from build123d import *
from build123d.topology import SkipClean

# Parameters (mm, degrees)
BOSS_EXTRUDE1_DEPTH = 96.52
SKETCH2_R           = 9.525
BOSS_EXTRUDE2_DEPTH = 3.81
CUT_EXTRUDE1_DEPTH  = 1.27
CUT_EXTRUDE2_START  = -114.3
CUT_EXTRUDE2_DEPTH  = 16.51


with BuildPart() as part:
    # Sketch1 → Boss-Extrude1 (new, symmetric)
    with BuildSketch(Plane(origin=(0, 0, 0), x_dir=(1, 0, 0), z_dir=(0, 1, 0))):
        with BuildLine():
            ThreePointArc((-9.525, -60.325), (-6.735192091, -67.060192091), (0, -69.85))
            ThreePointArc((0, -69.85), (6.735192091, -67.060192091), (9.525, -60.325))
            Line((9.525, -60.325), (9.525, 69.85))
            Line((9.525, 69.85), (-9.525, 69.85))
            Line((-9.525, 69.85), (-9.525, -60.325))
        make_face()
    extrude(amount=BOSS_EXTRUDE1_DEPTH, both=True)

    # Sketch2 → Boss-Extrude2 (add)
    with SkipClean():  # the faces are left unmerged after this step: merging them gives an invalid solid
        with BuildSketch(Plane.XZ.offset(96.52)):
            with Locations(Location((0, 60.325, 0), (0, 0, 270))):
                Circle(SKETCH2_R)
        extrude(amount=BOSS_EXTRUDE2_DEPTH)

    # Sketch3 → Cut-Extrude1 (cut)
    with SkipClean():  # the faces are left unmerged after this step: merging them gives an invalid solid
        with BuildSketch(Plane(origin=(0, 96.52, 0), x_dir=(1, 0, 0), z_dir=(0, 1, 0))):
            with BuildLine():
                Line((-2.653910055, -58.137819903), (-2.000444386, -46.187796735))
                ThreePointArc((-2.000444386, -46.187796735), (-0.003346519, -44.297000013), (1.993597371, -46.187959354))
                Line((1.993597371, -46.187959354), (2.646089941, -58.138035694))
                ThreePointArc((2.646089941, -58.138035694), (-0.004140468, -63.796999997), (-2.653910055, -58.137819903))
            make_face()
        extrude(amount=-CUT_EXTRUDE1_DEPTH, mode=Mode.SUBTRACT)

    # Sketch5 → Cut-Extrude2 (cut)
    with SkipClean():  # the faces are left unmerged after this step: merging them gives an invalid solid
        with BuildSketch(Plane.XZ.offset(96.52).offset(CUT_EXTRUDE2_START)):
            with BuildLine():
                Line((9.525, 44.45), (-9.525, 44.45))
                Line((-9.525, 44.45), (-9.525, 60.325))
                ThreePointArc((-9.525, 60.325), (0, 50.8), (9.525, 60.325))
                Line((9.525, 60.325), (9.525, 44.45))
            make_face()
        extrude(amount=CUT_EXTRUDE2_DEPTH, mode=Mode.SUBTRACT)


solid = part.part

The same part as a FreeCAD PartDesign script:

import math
import FreeCAD as App
import Part
import Sketcher

V = App.Vector
Q = App.Units.Quantity

doc = App.newDocument("Part")
body = doc.addObject("PartDesign::Body", "Body")

# Sketch on XZ plane
sketch1 = body.newObject("Sketcher::SketchObject", "Sketch")
sketch1.AttachmentSupport = (doc.getObject("XZ_Plane"), [""])
sketch1.MapMode = "FlatFace"
sketch1.addGeometry([
    Part.ArcOfCircle(Part.Circle(V(0, 60, 0), V(0, 0, 1), 10), math.radians(90), math.radians(180)),  # 0
    Part.ArcOfCircle(Part.Circle(V(0, 60, 0), V(0, 0, 1), 10), math.radians(0), math.radians(90)),  # 1
    Part.LineSegment(V(10, 60, 0), V(10, -70, 0)),  # 2
    Part.LineSegment(V(10, -70, 0), V(-10, -70, 0)),  # 3
    Part.LineSegment(V(-10, -70, 0), V(-10, 60, 0)),  # 4
], False)
sketch1.addConstraint([
    Sketcher.Constraint("Tangent", 0, 1, 1, 2),
    Sketcher.Constraint("Tangent", 1, 1, 2, 1),
    Sketcher.Constraint("Coincident", 2, 2, 3, 1),
    Sketcher.Constraint("Coincident", 3, 2, 4, 1),
    Sketcher.Constraint("Tangent", 4, 2, 0, 2),
    Sketcher.Constraint("Vertical", 2),
    Sketcher.Constraint("Horizontal", 3),
    Sketcher.Constraint("Vertical", 4),
    Sketcher.Constraint("Equal", 0, 1),
    Sketcher.Constraint("PointOnObject", 0, 3, -2),
    Sketcher.Constraint("PointOnObject", 0, 1, -2),
    Sketcher.Constraint("Radius", 0, Q("0.375 in")),
    Sketcher.Constraint("DistanceY", 2, 2, 0, 1, Q("5.5 in")),
    Sketcher.Constraint("DistanceY", -1, 1, 0, 1, Q("2.75 in")),
])
pad1 = body.newObject("PartDesign::Pad", "Pad")
pad1.Profile = sketch1
pad1.Length = Q("7.6 in")
pad1.Midplane = True

# Sketch on XZ plane
sketch2 = body.newObject("Sketcher::SketchObject", "Sketch001")
sketch2.AttachmentSupport = (doc.getObject("XZ_Plane"), [""])
sketch2.MapMode = "FlatFace"
sketch2.AttachmentOffset = App.Placement(V(0, 0, 3.8 * 25.4), App.Rotation())
sketch2.addGeometry(Part.Circle(V(0, 60, 0), V(0, 0, 1), 10), False)
sketch2.addConstraint([
    Sketcher.Constraint("PointOnObject", 0, 3, -2),
    Sketcher.Constraint("Diameter", 0, Q("0.75 in")),
    Sketcher.Constraint("DistanceY", -1, 1, 0, 3, Q("2.375 in")),
])
pad2 = body.newObject("PartDesign::Pad", "Pad001")
pad2.Profile = sketch2
pad2.Length = Q("0.15 in")

# Sketch on XZ plane
sketch3 = body.newObject("Sketcher::SketchObject", "Sketch002")
sketch3.AttachmentSupport = (doc.getObject("XZ_Plane"), [""])
sketch3.MapMode = "FlatFace"
sketch3.AttachmentOffset = App.Placement(V(0, 0, -3.8 * 25.4), App.Rotation())
sketch3.addGeometry([
    Part.LineSegment(V(-2, 46.2, 0), V(-2.7, 58.1, 0)),
    Part.ArcOfCircle(Part.Circle(V(0, 60.3, 0), V(0, 0, 1), 3.5), math.radians(-40), math.radians(220)),
    Part.LineSegment(V(2.6, 58.1, 0), V(2, 46.2, 0)),
    Part.ArcOfCircle(Part.Circle(V(0, 46.3, 0), V(0, 0, 1), 2), math.radians(-177), math.radians(-3)),
], False)
sketch3.addConstraint([
    Sketcher.Constraint("Coincident", 0, 2, 1, 2),
    Sketcher.Constraint("Coincident", 1, 1, 2, 1),
    Sketcher.Constraint("Tangent", 2, 2, 3, 2),
    Sketcher.Constraint("Tangent", 3, 1, 0, 1),
    Sketcher.Constraint("Equal", 0, 2),
    Sketcher.Constraint("Angle", 0, Q("93.13 deg")),
    Sketcher.Constraint("Radius", 1, Q("3.45 mm")),
    Sketcher.Constraint("Radius", 3, Q("2 mm")),
    Sketcher.Constraint("DistanceX", 3, 1, 1, 3, Q("0.0786002 in")),
    Sketcher.Constraint("DistanceX", 1, 3, -1, 1, Q("0.004 mm")),
    Sketcher.Constraint("DistanceY", -1, 1, 1, 3, Q("60.347 mm")),
    Sketcher.Constraint("DistanceY", -1, 1, 3, 3, Q("46.297 mm")),
])
pocket1 = body.newObject("PartDesign::Pocket", "Pocket")
pocket1.Profile = sketch3
pocket1.Length = Q("0.05 in")
pocket1.Reversed = True

# Sketch on XZ plane
sketch4 = body.newObject("Sketcher::SketchObject", "Sketch003")
sketch4.AttachmentSupport = (doc.getObject("XZ_Plane"), [""])
sketch4.MapMode = "FlatFace"
sketch4.AttachmentOffset = App.Placement(V(0, 0, -0.7 * 25.4), App.Rotation())
sketch4.addGeometry([
    Part.LineSegment(V(-10, 44, 0), V(10, 44, 0)),
    Part.LineSegment(V(10, 44, 0), V(10, 60, 0)),
    Part.ArcOfCircle(Part.Circle(V(0, 60, 0), V(0, 0, 1), 10), math.radians(180), math.radians(360)),
    Part.LineSegment(V(-10, 60, 0), V(-10, 44, 0)),
], False)
sketch4.addConstraint([
    Sketcher.Constraint("Coincident", 0, 2, 1, 1),
    Sketcher.Constraint("Tangent", 1, 2, 2, 2),
    Sketcher.Constraint("Tangent", 2, 1, 3, 1),
    Sketcher.Constraint("Coincident", 3, 2, 0, 1),
    Sketcher.Constraint("Horizontal", 0),
    Sketcher.Constraint("Vertical", 1),
    Sketcher.Constraint("Vertical", 3),
    Sketcher.Constraint("PointOnObject", 2, 3, -2),
    Sketcher.Constraint("Radius", 2, Q("0.375 in")),
    Sketcher.Constraint("DistanceY", 1, 1, 1, 2, Q("0.625 in")),
    Sketcher.Constraint("DistanceY", -1, 1, 0, 2, Q("1.75 in")),
])
pocket2 = body.newObject("PartDesign::Pocket", "Pocket001")
pocket2.Profile = sketch4
pocket2.Length = Q("0.65 in")
pocket2.Reversed = True

doc.recompute()
